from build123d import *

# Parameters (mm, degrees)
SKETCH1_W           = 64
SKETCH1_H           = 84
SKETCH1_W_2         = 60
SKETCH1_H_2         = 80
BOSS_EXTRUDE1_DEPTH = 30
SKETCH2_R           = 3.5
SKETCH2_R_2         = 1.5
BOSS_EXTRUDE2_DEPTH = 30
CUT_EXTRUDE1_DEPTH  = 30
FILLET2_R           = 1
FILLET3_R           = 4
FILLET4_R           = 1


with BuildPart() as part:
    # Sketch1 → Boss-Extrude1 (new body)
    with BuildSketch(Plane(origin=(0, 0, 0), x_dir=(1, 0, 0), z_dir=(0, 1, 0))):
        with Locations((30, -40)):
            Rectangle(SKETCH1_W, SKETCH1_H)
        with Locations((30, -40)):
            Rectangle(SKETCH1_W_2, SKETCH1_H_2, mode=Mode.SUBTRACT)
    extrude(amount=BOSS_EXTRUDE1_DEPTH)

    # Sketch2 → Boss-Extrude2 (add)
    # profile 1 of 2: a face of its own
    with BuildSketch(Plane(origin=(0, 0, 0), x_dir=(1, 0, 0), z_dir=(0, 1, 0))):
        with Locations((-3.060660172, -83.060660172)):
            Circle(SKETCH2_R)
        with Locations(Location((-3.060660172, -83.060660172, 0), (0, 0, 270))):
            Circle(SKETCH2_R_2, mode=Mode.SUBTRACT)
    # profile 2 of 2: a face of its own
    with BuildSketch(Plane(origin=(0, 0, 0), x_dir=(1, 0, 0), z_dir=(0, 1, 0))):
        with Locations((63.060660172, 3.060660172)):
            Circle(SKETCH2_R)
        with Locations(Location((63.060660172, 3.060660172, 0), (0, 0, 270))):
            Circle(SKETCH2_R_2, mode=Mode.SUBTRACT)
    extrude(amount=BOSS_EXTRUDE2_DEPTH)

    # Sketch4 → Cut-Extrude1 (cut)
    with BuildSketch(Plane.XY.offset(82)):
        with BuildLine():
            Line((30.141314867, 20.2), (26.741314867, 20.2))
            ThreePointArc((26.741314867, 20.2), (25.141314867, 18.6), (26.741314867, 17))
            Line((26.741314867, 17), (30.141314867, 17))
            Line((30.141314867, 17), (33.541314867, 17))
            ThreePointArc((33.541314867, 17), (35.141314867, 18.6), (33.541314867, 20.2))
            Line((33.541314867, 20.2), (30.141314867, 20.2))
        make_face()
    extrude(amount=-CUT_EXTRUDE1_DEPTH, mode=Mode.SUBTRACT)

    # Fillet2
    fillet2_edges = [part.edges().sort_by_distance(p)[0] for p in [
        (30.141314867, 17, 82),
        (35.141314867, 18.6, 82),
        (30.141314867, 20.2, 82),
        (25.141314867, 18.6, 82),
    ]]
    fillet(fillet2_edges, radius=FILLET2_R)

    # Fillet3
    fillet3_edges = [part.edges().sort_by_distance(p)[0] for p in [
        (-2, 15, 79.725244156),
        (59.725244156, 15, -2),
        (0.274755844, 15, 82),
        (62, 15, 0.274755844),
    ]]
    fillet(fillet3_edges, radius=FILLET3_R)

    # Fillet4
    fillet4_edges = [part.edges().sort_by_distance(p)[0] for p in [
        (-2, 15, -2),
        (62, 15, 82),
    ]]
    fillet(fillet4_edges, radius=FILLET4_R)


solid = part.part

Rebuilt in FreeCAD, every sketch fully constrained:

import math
import FreeCAD as App
import Part
import Sketcher
Q = App.Units.Quantity


def edges_at(feature, points):
    """Names of the edges that pass closest to the given points."""
    edges = feature.Shape.Edges
    near = lambda p: min(range(len(edges)), key=lambda i: edges[i].distToShape(Part.Vertex(*p))[0])
    return sorted({f"Edge{near(p) + 1}" for p in points})

doc = App.newDocument("Part")
params = doc.addObject("Spreadsheet::Sheet", "Params")
for row, (alias, value) in enumerate([
    ("sketch1_width", "64 mm"),
    ("sketch1_width2", "60 mm"),
    ("sketch1_height", "84 mm"),
    ("sketch1_height2", "80 mm"),
    ("pad1_length", "30 mm"),
    ("sketch2_diameter", "7 mm"),
    ("sketch2_diameter2", "3 mm"),
    ("pad2_length", "30 mm"),
    ("sketch3_radius", "1.6 mm"),
    ("sketch3_width", "6.8 mm"),
    ("pocket1_length", "30 mm"),
    ("fillet_radius", "1 mm"),
    ("fillet2_radius", "4 mm"),
    ("fillet3_radius", "1 mm"),
], start=1):
    params.set(f"A{row}", alias)
    params.set(f"B{row}", "=" + value)
    params.setAlias(f"B{row}", alias)

body = doc.addObject("PartDesign::Body", "Body")

sketch1 = body.newObject("Sketcher::SketchObject", "Sketch")
sketch1.AttachmentSupport = (doc.getObject("XZ_Plane"), [""])
sketch1.MapMode = "FlatFace"
sketch1.addGeometry([
    Part.LineSegment(App.Vector(-2, -2, 0), App.Vector(-2, 82, 0)),
    Part.LineSegment(App.Vector(-2, 82, 0), App.Vector(62, 82, 0)),
    Part.LineSegment(App.Vector(62, 82, 0), App.Vector(62, -2, 0)),
    Part.LineSegment(App.Vector(62, -2, 0), App.Vector(-2, -2, 0)),
    Part.LineSegment(App.Vector(60, 80, 0), App.Vector(0, 80, 0)),
    Part.LineSegment(App.Vector(0, 80, 0), App.Vector(0, 0, 0)),
    Part.LineSegment(App.Vector(0, 0, 0), App.Vector(60, 0, 0)),
    Part.LineSegment(App.Vector(60, 0, 0), App.Vector(60, 80, 0)),
], False)
sketch1.addConstraint([
    Sketcher.Constraint("Coincident", 0, 2, 1, 1),
    Sketcher.Constraint("Coincident", 1, 2, 2, 1),
    Sketcher.Constraint("Coincident", 2, 2, 3, 1),
    Sketcher.Constraint("Coincident", 3, 2, 0, 1),
    Sketcher.Constraint("Coincident", 4, 2, 5, 1),
    Sketcher.Constraint("Coincident", 5, 2, 6, 1),
    Sketcher.Constraint("Coincident", 6, 2, 7, 1),
    Sketcher.Constraint("Coincident", 7, 2, 4, 1),
    Sketcher.Constraint("Vertical", 0),
    Sketcher.Constraint("Horizontal", 1),
    Sketcher.Constraint("Vertical", 2),
    Sketcher.Constraint("Horizontal", 3),
    Sketcher.Constraint("Horizontal", 4),
    Sketcher.Constraint("Vertical", 5),
    Sketcher.Constraint("Horizontal", 6),
    Sketcher.Constraint("Vertical", 7),
    Sketcher.Constraint("Coincident", 5, 2, -1, 1),
    Sketcher.Constraint("DistanceX", 1, 1, 1, 2, Q("64 mm")),
    Sketcher.Constraint("DistanceX", 4, 2, 4, 1, Q("60 mm")),
    Sketcher.Constraint("DistanceY", 0, 1, 0, 2, Q("84 mm")),
    Sketcher.Constraint("DistanceY", 5, 2, 5, 1, Q("80 mm")),
    Sketcher.Constraint("DistanceX", 0, 2, -1, 1, Q("2 mm")),
    Sketcher.Constraint("DistanceY", -1, 1, 0, 2, Q("82 mm")),
])
sketch1.setExpression("Constraints[17]", "Params.sketch1_width")
sketch1.setExpression("Constraints[18]", "Params.sketch1_width2")
sketch1.setExpression("Constraints[19]", "Params.sketch1_height")
sketch1.setExpression("Constraints[20]", "Params.sketch1_height2")
pad1 = body.newObject("PartDesign::Pad", "Pad")
pad1.Profile = sketch1
pad1.setExpression("Length", "Params.pad1_length")
pad1.Reversed = True

sketch2 = body.newObject("Sketcher::SketchObject", "Sketch001")
sketch2.AttachmentSupport = (doc.getObject("XZ_Plane"), [""])
sketch2.MapMode = "FlatFace"
sketch2.addGeometry([
    Part.Circle(App.Vector(-3.06066, 83.06066, 0), App.Vector(0, 0, 1), 3.5),
    Part.Circle(App.Vector(-3.06066, 83.06066, 0), App.Vector(0, 0, 1), 1.5),
    Part.Circle(App.Vector(63.06066, -3.06066, 0), App.Vector(0, 0, 1), 3.5),
    Part.Circle(App.Vector(63.06066, -3.06066, 0), App.Vector(0, 0, 1), 1.5),
], False)
sketch2.addConstraint([
    Sketcher.Constraint("Coincident", 1, 3, 0, 3),
    Sketcher.Constraint("Coincident", 3, 3, 2, 3),
    Sketcher.Constraint("Equal", 0, 2),
    Sketcher.Constraint("Equal", 1, 3),
    Sketcher.Constraint("Diameter", 0, Q("7 mm")),
    Sketcher.Constraint("Diameter", 1, Q("3 mm")),
    Sketcher.Constraint("DistanceX", 0, 3, -1, 1, Q("3.06066 mm")),
    Sketcher.Constraint("DistanceY", -1, 1, 0, 3, Q("83.06066 mm")),
    Sketcher.Constraint("DistanceX", -1, 1, 2, 3, Q("63.06066 mm")),
    Sketcher.Constraint("DistanceY", 2, 3, -1, 1, Q("3.06066 mm")),
])
sketch2.setExpression("Constraints[4]", "Params.sketch2_diameter")
sketch2.setExpression("Constraints[5]", "Params.sketch2_diameter2")
pad2 = body.newObject("PartDesign::Pad", "Pad001")
pad2.Profile = sketch2
pad2.setExpression("Length", "Params.pad2_length")
pad2.Reversed = True

sketch3 = body.newObject("Sketcher::SketchObject", "Sketch002")
sketch3.AttachmentSupport = (doc.getObject("XY_Plane"), [""])
sketch3.MapMode = "FlatFace"
sketch3.AttachmentOffset = App.Placement(App.Vector(0, 0, 82), App.Rotation())
sketch3.addGeometry([
    Part.ArcOfCircle(Part.Circle(App.Vector(26.741315, 18.6, 0), App.Vector(0, 0, 1), 1.6), math.radians(90), math.radians(270)),
    Part.LineSegment(App.Vector(26.741315, 17, 0), App.Vector(33.541315, 17, 0)),
    Part.ArcOfCircle(Part.Circle(App.Vector(33.541315, 18.6, 0), App.Vector(0, 0, 1), 1.6), math.radians(-90), math.radians(90)),
    Part.LineSegment(App.Vector(33.541315, 20.2, 0), App.Vector(26.741315, 20.2, 0)),
], False)
sketch3.addConstraint([
    Sketcher.Constraint("Tangent", 0, 2, 1, 1),
    Sketcher.Constraint("Tangent", 1, 2, 2, 1),
    Sketcher.Constraint("Tangent", 2, 2, 3, 1),
    Sketcher.Constraint("Tangent", 3, 2, 0, 1),
    Sketcher.Constraint("Horizontal", 1),
    Sketcher.Constraint("Horizontal", 3),
    Sketcher.Constraint("Radius", 0, Q("1.6 mm")),
    Sketcher.Constraint("DistanceX", 1, 1, 1, 2, Q("6.8 mm")),
    Sketcher.Constraint("DistanceY", -1, 1, 0, 2, Q("17 mm")),
    Sketcher.Constraint("DistanceX", -1, 1, 0, 3, Q("26.741315 mm")),
])
sketch3.setExpression("Constraints[6]", "Params.sketch3_radius")
sketch3.setExpression("Constraints[7]", "Params.sketch3_width")
pocket1 = body.newObject("PartDesign::Pocket", "Pocket")
pocket1.Profile = sketch3
pocket1.setExpression("Length", "Params.pocket1_length")
doc.recompute()

fillet = body.newObject("PartDesign::Fillet", "Fillet")
fillet.Base = (pocket1, edges_at(pocket1, [
    (30.141, 17, 82),
    (35.141, 18.6, 82),
    (30.141, 20.2, 82),
    (25.141, 18.6, 82),
]))
fillet.setExpression("Radius", "Params.fillet_radius")
doc.recompute()

fillet2 = body.newObject("PartDesign::Fillet", "Fillet001")
fillet2.Base = (fillet, edges_at(fillet, [
    (-2, 15, 79.725),
    (59.725, 15, -2),
    (0.275, 15, 82),
    (62, 15, 0.275),
]))
fillet2.setExpression("Radius", "Params.fillet2_radius")
doc.recompute()

fillet3 = body.newObject("PartDesign::Fillet", "Fillet002")
fillet3.Base = (fillet2, edges_at(fillet2, [(-2, 15, -2), (62, 15, 82)]))
fillet3.setExpression("Radius", "Params.fillet3_radius")

doc.recompute()
